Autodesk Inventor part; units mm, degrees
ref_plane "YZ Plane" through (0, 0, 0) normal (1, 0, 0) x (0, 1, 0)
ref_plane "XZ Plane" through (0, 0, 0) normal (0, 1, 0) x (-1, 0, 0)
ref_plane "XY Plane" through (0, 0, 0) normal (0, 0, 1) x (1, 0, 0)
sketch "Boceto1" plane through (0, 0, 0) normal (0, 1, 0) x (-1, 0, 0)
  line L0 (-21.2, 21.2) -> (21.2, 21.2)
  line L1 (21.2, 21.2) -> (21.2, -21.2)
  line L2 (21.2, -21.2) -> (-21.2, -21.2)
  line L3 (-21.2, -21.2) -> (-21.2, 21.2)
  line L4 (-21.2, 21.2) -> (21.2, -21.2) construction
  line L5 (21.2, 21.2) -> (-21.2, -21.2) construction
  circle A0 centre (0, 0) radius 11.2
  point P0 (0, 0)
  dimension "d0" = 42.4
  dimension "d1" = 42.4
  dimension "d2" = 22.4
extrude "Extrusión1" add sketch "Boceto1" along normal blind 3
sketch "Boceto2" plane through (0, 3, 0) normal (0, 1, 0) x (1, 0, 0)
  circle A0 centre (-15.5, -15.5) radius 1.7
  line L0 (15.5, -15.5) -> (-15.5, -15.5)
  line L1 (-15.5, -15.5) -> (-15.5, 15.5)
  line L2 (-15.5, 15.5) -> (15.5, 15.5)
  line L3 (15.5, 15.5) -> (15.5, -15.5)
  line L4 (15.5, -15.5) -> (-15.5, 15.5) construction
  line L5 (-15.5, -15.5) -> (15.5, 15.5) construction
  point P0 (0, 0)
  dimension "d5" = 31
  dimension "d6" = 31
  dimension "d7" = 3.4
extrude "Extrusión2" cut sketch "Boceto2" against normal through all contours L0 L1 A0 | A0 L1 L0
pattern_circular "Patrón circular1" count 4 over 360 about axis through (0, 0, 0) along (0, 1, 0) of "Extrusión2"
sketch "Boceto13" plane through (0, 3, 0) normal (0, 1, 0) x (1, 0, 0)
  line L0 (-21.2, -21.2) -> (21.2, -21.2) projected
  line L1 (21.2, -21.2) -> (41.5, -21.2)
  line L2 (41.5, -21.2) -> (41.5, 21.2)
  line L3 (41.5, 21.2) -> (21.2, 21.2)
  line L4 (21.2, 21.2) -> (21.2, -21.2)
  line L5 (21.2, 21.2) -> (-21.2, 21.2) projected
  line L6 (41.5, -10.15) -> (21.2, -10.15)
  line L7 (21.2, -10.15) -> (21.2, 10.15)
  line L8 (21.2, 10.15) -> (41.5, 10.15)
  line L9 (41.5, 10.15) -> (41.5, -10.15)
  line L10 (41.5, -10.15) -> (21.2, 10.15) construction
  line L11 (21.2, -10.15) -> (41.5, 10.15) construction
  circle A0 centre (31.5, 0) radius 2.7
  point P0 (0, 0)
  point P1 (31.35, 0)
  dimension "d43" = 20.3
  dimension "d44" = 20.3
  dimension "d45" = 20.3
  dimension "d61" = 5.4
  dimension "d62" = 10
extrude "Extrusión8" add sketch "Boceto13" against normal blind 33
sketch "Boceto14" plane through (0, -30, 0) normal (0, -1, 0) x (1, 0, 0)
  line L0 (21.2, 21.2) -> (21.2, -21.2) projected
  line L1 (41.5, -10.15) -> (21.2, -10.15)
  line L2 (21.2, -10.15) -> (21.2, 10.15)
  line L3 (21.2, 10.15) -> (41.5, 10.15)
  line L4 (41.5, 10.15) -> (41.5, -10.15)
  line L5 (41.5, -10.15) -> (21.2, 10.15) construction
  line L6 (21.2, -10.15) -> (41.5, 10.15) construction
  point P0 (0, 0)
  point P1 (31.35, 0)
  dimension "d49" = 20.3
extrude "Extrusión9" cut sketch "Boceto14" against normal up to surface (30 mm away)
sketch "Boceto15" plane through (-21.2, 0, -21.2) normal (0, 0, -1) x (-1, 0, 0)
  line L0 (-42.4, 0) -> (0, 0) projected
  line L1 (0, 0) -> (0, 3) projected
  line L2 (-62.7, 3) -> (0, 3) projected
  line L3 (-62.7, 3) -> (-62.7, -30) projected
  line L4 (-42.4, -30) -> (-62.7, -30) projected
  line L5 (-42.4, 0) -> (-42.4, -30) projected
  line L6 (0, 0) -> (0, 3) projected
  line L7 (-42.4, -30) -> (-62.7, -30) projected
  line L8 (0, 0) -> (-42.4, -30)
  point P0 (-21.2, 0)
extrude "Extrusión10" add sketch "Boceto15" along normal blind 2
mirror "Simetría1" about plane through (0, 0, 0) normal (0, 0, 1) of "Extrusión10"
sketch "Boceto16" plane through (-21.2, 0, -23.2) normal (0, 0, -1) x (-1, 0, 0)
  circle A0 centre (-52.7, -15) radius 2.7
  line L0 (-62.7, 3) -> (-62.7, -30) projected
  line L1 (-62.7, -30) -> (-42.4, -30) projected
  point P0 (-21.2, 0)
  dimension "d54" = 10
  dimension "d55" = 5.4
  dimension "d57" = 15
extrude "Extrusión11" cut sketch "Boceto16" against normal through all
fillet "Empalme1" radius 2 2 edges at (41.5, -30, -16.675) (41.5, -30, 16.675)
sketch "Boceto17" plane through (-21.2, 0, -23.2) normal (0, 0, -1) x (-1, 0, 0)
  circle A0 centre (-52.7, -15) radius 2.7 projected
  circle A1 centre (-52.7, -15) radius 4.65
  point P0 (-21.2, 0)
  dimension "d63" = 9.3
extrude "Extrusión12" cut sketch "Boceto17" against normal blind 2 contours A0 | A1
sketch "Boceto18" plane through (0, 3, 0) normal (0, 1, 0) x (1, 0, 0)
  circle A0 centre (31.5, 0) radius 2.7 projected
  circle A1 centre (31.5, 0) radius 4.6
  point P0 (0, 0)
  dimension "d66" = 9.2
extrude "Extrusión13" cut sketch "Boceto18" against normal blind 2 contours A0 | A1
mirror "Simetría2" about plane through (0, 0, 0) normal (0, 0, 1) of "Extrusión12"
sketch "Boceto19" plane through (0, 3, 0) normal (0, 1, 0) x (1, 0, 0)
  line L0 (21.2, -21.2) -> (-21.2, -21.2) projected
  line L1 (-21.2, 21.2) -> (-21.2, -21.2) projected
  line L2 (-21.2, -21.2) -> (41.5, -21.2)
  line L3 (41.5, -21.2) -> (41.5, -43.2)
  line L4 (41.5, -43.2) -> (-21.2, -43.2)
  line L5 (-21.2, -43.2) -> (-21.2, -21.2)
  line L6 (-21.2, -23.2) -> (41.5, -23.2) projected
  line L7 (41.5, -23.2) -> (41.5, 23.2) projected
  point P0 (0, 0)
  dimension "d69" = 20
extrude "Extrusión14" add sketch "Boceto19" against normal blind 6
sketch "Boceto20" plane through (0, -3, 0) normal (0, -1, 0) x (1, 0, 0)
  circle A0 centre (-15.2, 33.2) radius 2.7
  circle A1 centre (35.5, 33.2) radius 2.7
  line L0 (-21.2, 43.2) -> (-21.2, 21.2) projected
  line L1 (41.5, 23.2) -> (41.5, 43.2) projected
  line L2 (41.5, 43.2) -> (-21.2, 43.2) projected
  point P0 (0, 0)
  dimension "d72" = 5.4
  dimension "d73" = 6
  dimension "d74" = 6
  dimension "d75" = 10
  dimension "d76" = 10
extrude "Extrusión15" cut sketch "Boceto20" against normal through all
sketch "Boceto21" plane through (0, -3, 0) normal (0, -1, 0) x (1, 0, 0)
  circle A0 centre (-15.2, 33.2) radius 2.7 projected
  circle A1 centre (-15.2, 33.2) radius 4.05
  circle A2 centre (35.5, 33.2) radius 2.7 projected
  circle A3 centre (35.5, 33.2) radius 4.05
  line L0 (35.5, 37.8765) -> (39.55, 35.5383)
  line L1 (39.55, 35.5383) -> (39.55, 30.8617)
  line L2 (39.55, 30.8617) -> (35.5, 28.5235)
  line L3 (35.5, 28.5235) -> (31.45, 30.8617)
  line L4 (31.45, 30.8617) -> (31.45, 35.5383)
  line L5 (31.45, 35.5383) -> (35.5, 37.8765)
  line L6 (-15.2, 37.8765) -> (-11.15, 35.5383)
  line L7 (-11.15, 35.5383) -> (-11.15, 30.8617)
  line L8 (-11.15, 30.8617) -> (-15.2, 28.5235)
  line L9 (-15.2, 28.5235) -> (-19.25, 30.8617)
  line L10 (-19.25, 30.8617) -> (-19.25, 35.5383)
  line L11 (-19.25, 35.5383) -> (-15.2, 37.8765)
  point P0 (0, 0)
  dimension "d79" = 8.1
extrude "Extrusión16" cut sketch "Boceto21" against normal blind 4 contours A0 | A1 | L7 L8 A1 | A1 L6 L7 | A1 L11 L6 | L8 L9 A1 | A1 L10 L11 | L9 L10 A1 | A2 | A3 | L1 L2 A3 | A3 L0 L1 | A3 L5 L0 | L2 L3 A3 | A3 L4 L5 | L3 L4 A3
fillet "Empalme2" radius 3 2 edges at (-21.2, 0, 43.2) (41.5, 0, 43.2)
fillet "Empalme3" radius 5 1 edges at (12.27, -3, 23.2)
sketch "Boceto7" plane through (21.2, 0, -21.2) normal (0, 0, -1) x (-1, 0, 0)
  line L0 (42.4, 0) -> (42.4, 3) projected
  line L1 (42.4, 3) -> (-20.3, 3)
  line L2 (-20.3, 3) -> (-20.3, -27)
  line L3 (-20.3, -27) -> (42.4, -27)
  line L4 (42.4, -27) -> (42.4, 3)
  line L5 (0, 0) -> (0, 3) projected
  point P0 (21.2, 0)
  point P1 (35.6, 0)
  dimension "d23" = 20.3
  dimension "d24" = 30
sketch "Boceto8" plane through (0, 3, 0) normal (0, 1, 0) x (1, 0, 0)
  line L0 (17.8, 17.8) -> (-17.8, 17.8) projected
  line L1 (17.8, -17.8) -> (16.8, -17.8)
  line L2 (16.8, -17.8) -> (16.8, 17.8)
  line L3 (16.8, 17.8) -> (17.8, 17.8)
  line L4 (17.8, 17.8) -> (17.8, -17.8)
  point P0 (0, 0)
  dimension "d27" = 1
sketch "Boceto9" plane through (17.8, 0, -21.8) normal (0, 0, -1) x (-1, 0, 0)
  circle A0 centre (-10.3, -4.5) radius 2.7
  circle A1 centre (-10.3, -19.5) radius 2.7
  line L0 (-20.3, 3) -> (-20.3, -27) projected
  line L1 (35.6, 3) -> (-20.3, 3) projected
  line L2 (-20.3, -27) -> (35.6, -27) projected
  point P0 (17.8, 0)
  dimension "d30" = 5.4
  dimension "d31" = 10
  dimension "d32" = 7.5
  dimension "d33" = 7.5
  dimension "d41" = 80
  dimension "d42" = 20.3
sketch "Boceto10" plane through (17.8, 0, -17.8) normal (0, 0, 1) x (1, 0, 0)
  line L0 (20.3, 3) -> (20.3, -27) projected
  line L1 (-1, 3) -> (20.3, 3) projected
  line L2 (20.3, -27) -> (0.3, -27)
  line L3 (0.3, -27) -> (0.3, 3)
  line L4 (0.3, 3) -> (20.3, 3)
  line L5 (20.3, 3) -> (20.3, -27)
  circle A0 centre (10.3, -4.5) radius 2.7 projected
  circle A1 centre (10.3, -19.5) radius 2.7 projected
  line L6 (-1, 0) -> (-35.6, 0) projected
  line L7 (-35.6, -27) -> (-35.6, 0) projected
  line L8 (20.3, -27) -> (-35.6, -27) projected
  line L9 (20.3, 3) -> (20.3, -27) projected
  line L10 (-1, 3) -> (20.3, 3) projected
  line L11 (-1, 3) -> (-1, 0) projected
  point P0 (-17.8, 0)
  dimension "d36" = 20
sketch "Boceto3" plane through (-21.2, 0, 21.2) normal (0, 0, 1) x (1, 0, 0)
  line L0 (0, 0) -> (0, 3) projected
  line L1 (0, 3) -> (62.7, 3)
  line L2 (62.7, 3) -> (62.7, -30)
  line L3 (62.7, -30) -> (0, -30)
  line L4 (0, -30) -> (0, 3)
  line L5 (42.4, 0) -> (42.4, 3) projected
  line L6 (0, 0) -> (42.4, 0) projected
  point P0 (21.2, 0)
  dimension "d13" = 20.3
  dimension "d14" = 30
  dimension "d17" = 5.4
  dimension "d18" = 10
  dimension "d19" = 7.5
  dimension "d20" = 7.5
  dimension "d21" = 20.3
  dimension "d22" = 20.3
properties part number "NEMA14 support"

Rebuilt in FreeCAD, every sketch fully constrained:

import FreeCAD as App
import Part
import Sketcher

V = App.Vector
Q = App.Units.Quantity


def edges_at(feature, points):
    """Names of the edges that pass closest to the given points."""
    edges = feature.Shape.Edges
    near = lambda p: min(range(len(edges)), key=lambda i: edges[i].distToShape(Part.Vertex(*p))[0])
    return sorted({f"Edge{near(p) + 1}" for p in points})


def add_polygon(sketch, points):
    """Adds a closed chain of lines whose ends are joined by coincident constraints."""
    first, n = sketch.GeometryCount, len(points)
    for a, b in zip(points, points[1:] + points[:1]):
        sketch.addGeometry(Part.LineSegment(App.Vector(*a, 0), App.Vector(*b, 0)), False)
    for i in range(n):
        sketch.addConstraint(Sketcher.Constraint("Coincident", first + i, 2, first + (i + 1) % n, 1))

doc = App.newDocument("Part")
body = doc.addObject("PartDesign::Body", "Body")

# Sketch on XZ plane
sketch1 = body.newObject("Sketcher::SketchObject", "Sketch")
sketch1.AttachmentSupport = (doc.getObject("XZ_Plane"), [""])
sketch1.MapMode = "FlatFace"
add_polygon(sketch1, [(-21, 21), (21, 21), (21, -21), (-21, -21)])  # lines 0-3
sketch1.addGeometry(Part.Circle(V(0, 0, 0), V(0, 0, 1), 11), False)  # 4
sketch1.addConstraint(Sketcher.Constraint("Horizontal", 0))
sketch1.addConstraint(Sketcher.Constraint("Vertical", 1))
sketch1.addConstraint(Sketcher.Constraint("Horizontal", 2))
sketch1.addConstraint(Sketcher.Constraint("Vertical", 3))
sketch1.addConstraint(Sketcher.Constraint("Coincident", 4, 3, -1, 1))
sketch1.addConstraint(Sketcher.Constraint("Symmetric", 0, 2, 2, 2, -1, 1))
sketch1.addConstraint(Sketcher.Constraint("Equal", 2, 1))
sketch1.addConstraint(Sketcher.Constraint("Diameter", 4, 22.4))
sketch1.addConstraint(Sketcher.Constraint("DistanceX", 0, 1, 0, 2, 42.4))
pad1 = body.newObject("PartDesign::Pad", "Pad")
pad1.Profile = sketch1
pad1.Length = 3
pad1.Reversed = True

# Sketch on XZ plane
sketch2 = body.newObject("Sketcher::SketchObject", "Sketch001")
sketch2.AttachmentSupport = (doc.getObject("XZ_Plane"), [""])
sketch2.MapMode = "FlatFace"
sketch2.AttachmentOffset = App.Placement(V(0, 0, -3), App.Rotation())
sketch2.addGeometry(Part.Circle(V(-15.5, 15.5, 0), V(0, 0, 1), 1.7), False)
sketch2.addConstraint(Sketcher.Constraint("Diameter", 0, 3.4))
sketch2.addConstraint(Sketcher.Constraint("DistanceX", 0, 3, -1, 1, 15.5))
sketch2.addConstraint(Sketcher.Constraint("DistanceY", -1, 1, 0, 3, 15.5))
pocket1 = body.newObject("PartDesign::Pocket", "Pocket")
pocket1.Profile = sketch2
pocket1.Type = "ThroughAll"
pocket1.Reversed = True
doc.recompute()

polarpattern = body.newObject("PartDesign::PolarPattern", "PolarPattern")
polarpattern.Originals = [pocket1]
polarpattern.Axis = (doc.getObject("Y_Axis"), [""])
polarpattern.Angle = 360
polarpattern.Occurrences = 4
body.Tip = polarpattern

# Sketch on XZ plane
sketch3 = body.newObject("Sketcher::SketchObject", "Sketch002")
sketch3.AttachmentSupport = (doc.getObject("XZ_Plane"), [""])
sketch3.MapMode = "FlatFace"
sketch3.AttachmentOffset = App.Placement(V(0, 0, -3), App.Rotation())
add_polygon(sketch3, [(21.2, 21.2), (41.5, 21.2), (41.5, -21.2), (21.2, -21.2)])  # lines 0-3
sketch3.addGeometry(Part.Circle(V(31.5, 0, 0), V(0, 0, 1), 2.7), False)  # 4
sketch3.addConstraint(Sketcher.Constraint("Horizontal", 0))
sketch3.addConstraint(Sketcher.Constraint("Vertical", 1))
sketch3.addConstraint(Sketcher.Constraint("Horizontal", 2))
sketch3.addConstraint(Sketcher.Constraint("Vertical", 3))
sketch3.addConstraint(Sketcher.Constraint("PointOnObject", 4, 3, -1))
sketch3.addConstraint(Sketcher.Constraint("Diameter", 4, 5.4))
sketch3.addConstraint(Sketcher.Constraint("DistanceX", 0, 1, 0, 2, 20.3))
sketch3.addConstraint(Sketcher.Constraint("DistanceX", 4, 3, 0, 2, 10.0))
sketch3.addConstraint(Sketcher.Constraint("DistanceY", 1, 2, 1, 1, 42.4))
sketch3.addConstraint(Sketcher.Constraint("DistanceX", -1, 1, 4, 3, 31.5))
sketch3.addConstraint(Sketcher.Constraint("DistanceY", -1, 1, 0, 2, 21.2))
pad2 = body.newObject("PartDesign::Pad", "Pad001")
pad2.Profile = sketch3
pad2.Length = 33

# Sketch on XZ plane
sketch4 = body.newObject("Sketcher::SketchObject", "Sketch003")
sketch4.AttachmentSupport = (doc.getObject("XZ_Plane"), [""])
sketch4.MapMode = "FlatFace"
sketch4.AttachmentOffset = App.Placement(V(0, 0, 30), App.Rotation())
add_polygon(sketch4, [(42, 10), (21, 10), (21, -10), (42, -10)])  # lines 0-3
sketch4.addConstraint(Sketcher.Constraint("Horizontal", 0))
sketch4.addConstraint(Sketcher.Constraint("Vertical", 1))
sketch4.addConstraint(Sketcher.Constraint("Horizontal", 2))
sketch4.addConstraint(Sketcher.Constraint("Vertical", 3))
sketch4.addConstraint(Sketcher.Constraint("Equal", 2, 1))
sketch4.addConstraint(Sketcher.Constraint("DistanceX", 0, 2, 0, 1, 20.3))
sketch4.addConstraint(Sketcher.Constraint("DistanceX", -1, 1, 0, 2, 21.2))
sketch4.addConstraint(Sketcher.Constraint("DistanceY", -1, 1, 0, 2, 10.15))
pocket2 = body.newObject("PartDesign::Pocket", "Pocket001")
pocket2.Profile = sketch4
pocket2.Length = 30

# Sketch on XY plane
sketch5 = body.newObject("Sketcher::SketchObject", "Sketch004")
sketch5.AttachmentSupport = (doc.getObject("XY_Plane"), [""])
sketch5.MapMode = "FlatFace"
sketch5.AttachmentOffset = App.Placement(V(0, 0, -21.2), App.Rotation())
add_polygon(sketch5, [(41.5, -30), (21.2, -30), (-21.2, 0), (-21.2, 3), (41.5, 3)])  # lines 0-4
sketch5.addConstraint(Sketcher.Constraint("Horizontal", 0))
sketch5.addConstraint(Sketcher.Constraint("Vertical", 2))
sketch5.addConstraint(Sketcher.Constraint("Horizontal", 3))
sketch5.addConstraint(Sketcher.Constraint("Vertical", 4))
sketch5.addConstraint(Sketcher.Constraint("PointOnObject", 1, 2, -1))
sketch5.addConstraint(Sketcher.Constraint("DistanceY", 2, 1, 2, 2, 3.0))
sketch5.addConstraint(Sketcher.Constraint("DistanceY", 4, 2, 4, 1, 33.0))
sketch5.addConstraint(Sketcher.Constraint("DistanceX", 0, 2, 0, 1, 20.3))
sketch5.addConstraint(Sketcher.Constraint("DistanceX", 3, 1, 3, 2, 62.7))
sketch5.addConstraint(Sketcher.Constraint("DistanceX", -1, 1, 0, 2, 21.2))
pad3 = body.newObject("PartDesign::Pad", "Pad002")
pad3.Profile = sketch5
pad3.Length = 2
pad3.Reversed = True
doc.recompute()

mirrored = body.newObject("PartDesign::Mirrored", "Mirrored")
mirrored.Originals = [pad3]
mirrored.MirrorPlane = (doc.getObject("XY_Plane"), [""])
body.Tip = mirrored

# Sketch on XY plane
sketch6 = body.newObject("Sketcher::SketchObject", "Sketch005")
sketch6.AttachmentSupport = (doc.getObject("XY_Plane"), [""])
sketch6.MapMode = "FlatFace"
sketch6.AttachmentOffset = App.Placement(V(0, 0, -23.2), App.Rotation())
sketch6.addGeometry(Part.Circle(V(31.5, -15, 0), V(0, 0, 1), 2.7), False)
sketch6.addConstraint(Sketcher.Constraint("Diameter", 0, 5.4))
sketch6.addConstraint(Sketcher.Constraint("DistanceY", 0, 3, -1, 1, 15.0))
sketch6.addConstraint(Sketcher.Constraint("DistanceX", -1, 1, 0, 3, 31.5))
pocket3 = body.newObject("PartDesign::Pocket", "Pocket002")
pocket3.Profile = sketch6
pocket3.Type = "ThroughAll"
pocket3.Reversed = True
doc.recompute()

fillet = body.newObject("PartDesign::Fillet", "Fillet")
fillet.Base = (pocket3, edges_at(pocket3, [(41.5, -30, -16.675), (41.5, -30, 16.675)]))
fillet.Radius = 2

# Sketch on XY plane
sketch7 = body.newObject("Sketcher::SketchObject", "Sketch006")
sketch7.AttachmentSupport = (doc.getObject("XY_Plane"), [""])
sketch7.MapMode = "FlatFace"
sketch7.AttachmentOffset = App.Placement(V(0, 0, -23.2), App.Rotation())
sketch7.addGeometry(Part.Circle(V(31.5, -15, 0), V(0, 0, 1), 4.7), False)
sketch7.addConstraint(Sketcher.Constraint("Diameter", 0, 9.3))
sketch7.addConstraint(Sketcher.Constraint("DistanceY", 0, 3, -1, 1, 15.0))
sketch7.addConstraint(Sketcher.Constraint("DistanceX", -1, 1, 0, 3, 31.5))
pocket4 = body.newObject("PartDesign::Pocket", "Pocket003")
pocket4.Profile = sketch7
pocket4.Length = 2
pocket4.Reversed = True

# Sketch on XZ plane
sketch8 = body.newObject("Sketcher::SketchObject", "Sketch007")
sketch8.AttachmentSupport = (doc.getObject("XZ_Plane"), [""])
sketch8.MapMode = "FlatFace"
sketch8.AttachmentOffset = App.Placement(V(0, 0, -3), App.Rotation())
sketch8.addGeometry(Part.Circle(V(31.5, 0, 0), V(0, 0, 1), 4.6), False)
sketch8.addConstraint(Sketcher.Constraint("PointOnObject", 0, 3, -1))
sketch8.addConstraint(Sketcher.Constraint("Diameter", 0, 9.2))
sketch8.addConstraint(Sketcher.Constraint("DistanceX", -1, 1, 0, 3, 31.5))
pocket5 = body.newObject("PartDesign::Pocket", "Pocket004")
pocket5.Profile = sketch8
pocket5.Length = 2
pocket5.Reversed = True
doc.recompute()

mirrored2 = body.newObject("PartDesign::Mirrored", "Mirrored001")
mirrored2.Originals = [pocket4]
mirrored2.MirrorPlane = (doc.getObject("XY_Plane"), [""])
body.Tip = mirrored2

# Sketch on XZ plane
sketch9 = body.newObject("Sketcher::SketchObject", "Sketch008")
sketch9.AttachmentSupport = (doc.getObject("XZ_Plane"), [""])
sketch9.MapMode = "FlatFace"
sketch9.AttachmentOffset = App.Placement(V(0, 0, -3), App.Rotation())
add_polygon(sketch9, [(42, 21), (-21, 21), (-21, 43), (42, 43)])  # lines 0-3
sketch9.addConstraint(Sketcher.Constraint("Horizontal", 0))
sketch9.addConstraint(Sketcher.Constraint("Vertical", 1))
sketch9.addConstraint(Sketcher.Constraint("Horizontal", 2))
sketch9.addConstraint(Sketcher.Constraint("Vertical", 3))
sketch9.addConstraint(Sketcher.Constraint("DistanceY", 1, 1, 1, 2, 22.0))
sketch9.addConstraint(Sketcher.Constraint("DistanceX", 0, 2, 0, 1, 62.7))
sketch9.addConstraint(Sketcher.Constraint("DistanceX", 0, 2, -1, 1, 21.2))
sketch9.addConstraint(Sketcher.Constraint("DistanceY", -1, 1, 0, 2, 21.2))
pad4 = body.newObject("PartDesign::Pad", "Pad003")
pad4.Profile = sketch9
pad4.Length = 6

# Sketch on XZ plane
sketch10 = body.newObject("Sketcher::SketchObject", "Sketch009")
sketch10.AttachmentSupport = (doc.getObject("XZ_Plane"), [""])
sketch10.MapMode = "FlatFace"
sketch10.AttachmentOffset = App.Placement(V(0, 0, 3), App.Rotation())
sketch10.addGeometry(Part.Circle(V(-15.2, 33.2, 0), V(0, 0, 1), 2.7), False)
sketch10.addGeometry(Part.Circle(V(35.5, 33.2, 0), V(0, 0, 1), 2.7), False)
sketch10.addConstraint(Sketcher.Constraint("Equal", 0, 1))
sketch10.addConstraint(Sketcher.Constraint("Horizontal", 0, 3, 1, 3))
sketch10.addConstraint(Sketcher.Constraint("Diameter", 0, 5.4))
sketch10.addConstraint(Sketcher.Constraint("DistanceX", 0, 3, -1, 1, 15.2))
sketch10.addConstraint(Sketcher.Constraint("DistanceY", -1, 1, 0, 3, 33.2))
sketch10.addConstraint(Sketcher.Constraint("DistanceX", -1, 1, 1, 3, 35.5))
pocket6 = body.newObject("PartDesign::Pocket", "Pocket005")
pocket6.Profile = sketch10
pocket6.Type = "ThroughAll"

# Sketch on XZ plane
sketch11 = body.newObject("Sketcher::SketchObject", "Sketch010")
sketch11.AttachmentSupport = (doc.getObject("XZ_Plane"), [""])
sketch11.MapMode = "FlatFace"
sketch11.AttachmentOffset = App.Placement(V(0, 0, 3), App.Rotation())
add_polygon(sketch11, [(-11.2, 30.9), (-11.2, 35.5), (-15.2, 37.9), (-19.2, 35.5), (-19.2, 30.9), (-15.2, 28.5)])  # lines 0-5
add_polygon(sketch11, [(39.5, 30.9), (39.5, 35.5), (35.5, 37.9), (31.4, 35.5), (31.4, 30.9), (35.5, 28.5)])  # lines 6-11
sketch11.addConstraint(Sketcher.Constraint("Vertical", 0))
sketch11.addConstraint(Sketcher.Constraint("Vertical", 3))
sketch11.addConstraint(Sketcher.Constraint("Vertical", 6))
sketch11.addConstraint(Sketcher.Constraint("Vertical", 9))
sketch11.addConstraint(Sketcher.Constraint("Parallel", 1, 4))
sketch11.addConstraint(Sketcher.Constraint("Parallel", 2, 5))
sketch11.addConstraint(Sketcher.Constraint("Parallel", 4, 7))
sketch11.addConstraint(Sketcher.Constraint("Parallel", 5, 8))
sketch11.addConstraint(Sketcher.Constraint("Parallel", 7, 10))
sketch11.addConstraint(Sketcher.Constraint("Parallel", 8, 11))
sketch11.addConstraint(Sketcher.Constraint("Horizontal", 0, 2, 2, 2))
sketch11.addConstraint(Sketcher.Constraint("Horizontal", 3, 2, 5, 2))
sketch11.addConstraint(Sketcher.Constraint("Horizontal", 2, 2, 6, 2))
sketch11.addConstraint(Sketcher.Constraint("Horizontal", 1, 2, 7, 2))
sketch11.addConstraint(Sketcher.Constraint("Horizontal", 6, 2, 8, 2))
sketch11.addConstraint(Sketcher.Constraint("Horizontal", 5, 2, 9, 2))
sketch11.addConstraint(Sketcher.Constraint("Horizontal", 4, 2, 10, 2))
sketch11.addConstraint(Sketcher.Constraint("Vertical", 1, 2, 4, 2))
sketch11.addConstraint(Sketcher.Constraint("DistanceX", 2, 2, 0, 2, 8.1))
sketch11.addConstraint(Sketcher.Constraint("Angle", 1, Q("150.0007 deg")))
sketch11.addConstraint(Sketcher.Constraint("DistanceX", 1, 2, -1, 1, 15.2))
sketch11.addConstraint(Sketcher.Constraint("DistanceX", -1, 1, 7, 2, 35.5))
sketch11.addConstraint(Sketcher.Constraint("DistanceY", 0, 1, 0, 2, 4.6766))
sketch11.addConstraint(Sketcher.Constraint("DistanceY", -1, 1, 0, 2, 35.5383))
pocket7 = body.newObject("PartDesign::Pocket", "Pocket006")
pocket7.Profile = sketch11
pocket7.Length = 4
doc.recompute()

fillet2 = body.newObject("PartDesign::Fillet", "Fillet001")
fillet2.Base = (pocket7, edges_at(pocket7, [(-21.2, 0, 43.2), (41.5, 0, 43.2)]))
fillet2.Radius = 3
doc.recompute()

fillet3 = body.newObject("PartDesign::Fillet", "Fillet002")
fillet3.Base = (fillet2, edges_at(fillet2, [(12.27, -3, 23.2)]))
fillet3.Radius = 5

doc.recompute()
